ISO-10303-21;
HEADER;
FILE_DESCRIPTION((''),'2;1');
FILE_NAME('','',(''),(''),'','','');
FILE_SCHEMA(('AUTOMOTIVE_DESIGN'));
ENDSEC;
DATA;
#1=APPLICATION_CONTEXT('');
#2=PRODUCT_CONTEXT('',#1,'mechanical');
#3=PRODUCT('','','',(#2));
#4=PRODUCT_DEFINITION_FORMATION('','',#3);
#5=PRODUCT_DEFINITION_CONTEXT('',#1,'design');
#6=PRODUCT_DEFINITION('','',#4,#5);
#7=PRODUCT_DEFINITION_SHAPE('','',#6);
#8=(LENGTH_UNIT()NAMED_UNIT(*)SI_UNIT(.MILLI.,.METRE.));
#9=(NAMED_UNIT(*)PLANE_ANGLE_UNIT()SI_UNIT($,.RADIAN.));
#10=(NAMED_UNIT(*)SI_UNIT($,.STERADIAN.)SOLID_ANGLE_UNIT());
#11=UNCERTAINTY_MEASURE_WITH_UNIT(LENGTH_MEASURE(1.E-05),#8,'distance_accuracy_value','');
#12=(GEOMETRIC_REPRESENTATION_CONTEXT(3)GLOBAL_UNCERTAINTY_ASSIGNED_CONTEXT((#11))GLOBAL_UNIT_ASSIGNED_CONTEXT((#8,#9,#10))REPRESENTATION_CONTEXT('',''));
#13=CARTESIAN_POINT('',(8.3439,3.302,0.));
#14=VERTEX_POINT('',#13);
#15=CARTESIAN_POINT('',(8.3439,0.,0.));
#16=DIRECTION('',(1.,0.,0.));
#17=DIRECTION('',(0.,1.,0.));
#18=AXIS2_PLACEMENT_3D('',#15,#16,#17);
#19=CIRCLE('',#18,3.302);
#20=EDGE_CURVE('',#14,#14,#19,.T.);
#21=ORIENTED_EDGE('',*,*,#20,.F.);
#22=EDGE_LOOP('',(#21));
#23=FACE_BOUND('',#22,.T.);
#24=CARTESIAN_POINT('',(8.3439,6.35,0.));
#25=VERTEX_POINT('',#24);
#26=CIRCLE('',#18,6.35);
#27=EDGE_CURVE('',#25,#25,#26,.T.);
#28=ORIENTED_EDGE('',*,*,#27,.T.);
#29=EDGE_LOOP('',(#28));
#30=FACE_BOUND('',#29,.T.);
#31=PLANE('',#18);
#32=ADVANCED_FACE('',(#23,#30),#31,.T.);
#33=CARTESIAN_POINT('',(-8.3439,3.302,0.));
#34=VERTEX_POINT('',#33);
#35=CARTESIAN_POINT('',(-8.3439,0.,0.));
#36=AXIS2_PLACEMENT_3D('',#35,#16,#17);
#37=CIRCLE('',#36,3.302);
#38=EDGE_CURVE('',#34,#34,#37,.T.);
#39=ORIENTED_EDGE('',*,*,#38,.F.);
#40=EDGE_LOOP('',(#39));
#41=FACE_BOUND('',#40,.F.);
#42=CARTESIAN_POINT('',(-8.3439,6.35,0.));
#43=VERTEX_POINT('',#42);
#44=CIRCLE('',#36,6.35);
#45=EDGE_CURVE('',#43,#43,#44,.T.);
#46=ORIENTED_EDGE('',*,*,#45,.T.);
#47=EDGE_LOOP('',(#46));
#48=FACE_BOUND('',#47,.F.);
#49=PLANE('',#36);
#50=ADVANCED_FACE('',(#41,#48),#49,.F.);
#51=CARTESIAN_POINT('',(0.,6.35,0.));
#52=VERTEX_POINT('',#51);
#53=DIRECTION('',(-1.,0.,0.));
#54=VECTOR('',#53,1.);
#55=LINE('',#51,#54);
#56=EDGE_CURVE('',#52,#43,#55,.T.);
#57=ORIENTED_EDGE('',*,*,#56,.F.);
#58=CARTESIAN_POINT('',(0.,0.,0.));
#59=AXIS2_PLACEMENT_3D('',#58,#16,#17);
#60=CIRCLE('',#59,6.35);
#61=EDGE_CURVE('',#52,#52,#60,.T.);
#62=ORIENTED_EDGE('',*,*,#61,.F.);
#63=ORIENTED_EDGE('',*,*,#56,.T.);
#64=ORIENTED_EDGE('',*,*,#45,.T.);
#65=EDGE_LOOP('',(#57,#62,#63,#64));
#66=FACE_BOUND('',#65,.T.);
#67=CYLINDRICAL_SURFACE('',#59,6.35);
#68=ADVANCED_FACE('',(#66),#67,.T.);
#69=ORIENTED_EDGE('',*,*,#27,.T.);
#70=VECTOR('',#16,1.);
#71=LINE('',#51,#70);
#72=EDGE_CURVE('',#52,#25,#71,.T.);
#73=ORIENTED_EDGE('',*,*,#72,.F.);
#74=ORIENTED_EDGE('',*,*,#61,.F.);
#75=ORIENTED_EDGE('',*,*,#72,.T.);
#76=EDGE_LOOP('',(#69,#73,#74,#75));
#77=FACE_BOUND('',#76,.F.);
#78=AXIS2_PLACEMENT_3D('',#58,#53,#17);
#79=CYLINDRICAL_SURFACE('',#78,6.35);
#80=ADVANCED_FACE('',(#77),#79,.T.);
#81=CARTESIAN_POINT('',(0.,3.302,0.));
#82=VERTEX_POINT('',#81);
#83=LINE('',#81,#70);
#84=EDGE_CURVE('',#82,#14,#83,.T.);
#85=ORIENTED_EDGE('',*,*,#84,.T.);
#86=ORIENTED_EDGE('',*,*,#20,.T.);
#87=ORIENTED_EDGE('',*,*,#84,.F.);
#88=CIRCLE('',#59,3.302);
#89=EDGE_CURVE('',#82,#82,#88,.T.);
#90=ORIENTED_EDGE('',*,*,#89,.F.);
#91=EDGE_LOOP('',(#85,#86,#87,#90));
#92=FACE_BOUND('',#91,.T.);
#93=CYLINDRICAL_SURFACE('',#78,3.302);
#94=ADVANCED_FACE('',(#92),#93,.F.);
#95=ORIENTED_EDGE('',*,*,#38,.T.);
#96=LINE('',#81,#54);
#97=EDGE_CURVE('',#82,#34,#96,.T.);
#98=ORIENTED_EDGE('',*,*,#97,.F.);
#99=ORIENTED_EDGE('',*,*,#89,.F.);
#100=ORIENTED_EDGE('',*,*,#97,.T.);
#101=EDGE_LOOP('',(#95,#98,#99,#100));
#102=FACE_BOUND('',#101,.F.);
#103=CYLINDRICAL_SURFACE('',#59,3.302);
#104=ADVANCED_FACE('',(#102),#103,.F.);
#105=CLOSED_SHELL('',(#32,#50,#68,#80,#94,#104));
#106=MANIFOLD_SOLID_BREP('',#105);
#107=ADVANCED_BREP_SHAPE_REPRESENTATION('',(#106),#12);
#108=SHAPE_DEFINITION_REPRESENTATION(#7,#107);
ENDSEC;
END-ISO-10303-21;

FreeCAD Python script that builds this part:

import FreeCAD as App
import Part
import Sketcher

V = App.Vector
Q = App.Units.Quantity

doc = App.newDocument("Part")
body = doc.addObject("PartDesign::Body", "Body")

# Sketch on YZ plane
sketch1 = body.newObject("Sketcher::SketchObject", "Sketch")
sketch1.AttachmentSupport = (doc.getObject("YZ_Plane"), [""])
sketch1.MapMode = "FlatFace"
sketch1.addGeometry([
    Part.Circle(V(0, 0, 0), V(0, 0, 1), 6.35),
    Part.Circle(V(0, 0, 0), V(0, 0, 1), 3.302),
], False)
sketch1.addConstraint([
    Sketcher.Constraint("Coincident", 0, 3, -1, 1),
    Sketcher.Constraint("Coincident", 1, 3, -1, 1),
    Sketcher.Constraint("Diameter", 0, Q("0.5 in")),
    Sketcher.Constraint("Diameter", 1, Q("0.26 in")),
])
pad1 = body.newObject("PartDesign::Pad", "Pad")
pad1.Profile = sketch1
pad1.Length = Q("0.657 in")
pad1.Midplane = True

doc.recompute()
